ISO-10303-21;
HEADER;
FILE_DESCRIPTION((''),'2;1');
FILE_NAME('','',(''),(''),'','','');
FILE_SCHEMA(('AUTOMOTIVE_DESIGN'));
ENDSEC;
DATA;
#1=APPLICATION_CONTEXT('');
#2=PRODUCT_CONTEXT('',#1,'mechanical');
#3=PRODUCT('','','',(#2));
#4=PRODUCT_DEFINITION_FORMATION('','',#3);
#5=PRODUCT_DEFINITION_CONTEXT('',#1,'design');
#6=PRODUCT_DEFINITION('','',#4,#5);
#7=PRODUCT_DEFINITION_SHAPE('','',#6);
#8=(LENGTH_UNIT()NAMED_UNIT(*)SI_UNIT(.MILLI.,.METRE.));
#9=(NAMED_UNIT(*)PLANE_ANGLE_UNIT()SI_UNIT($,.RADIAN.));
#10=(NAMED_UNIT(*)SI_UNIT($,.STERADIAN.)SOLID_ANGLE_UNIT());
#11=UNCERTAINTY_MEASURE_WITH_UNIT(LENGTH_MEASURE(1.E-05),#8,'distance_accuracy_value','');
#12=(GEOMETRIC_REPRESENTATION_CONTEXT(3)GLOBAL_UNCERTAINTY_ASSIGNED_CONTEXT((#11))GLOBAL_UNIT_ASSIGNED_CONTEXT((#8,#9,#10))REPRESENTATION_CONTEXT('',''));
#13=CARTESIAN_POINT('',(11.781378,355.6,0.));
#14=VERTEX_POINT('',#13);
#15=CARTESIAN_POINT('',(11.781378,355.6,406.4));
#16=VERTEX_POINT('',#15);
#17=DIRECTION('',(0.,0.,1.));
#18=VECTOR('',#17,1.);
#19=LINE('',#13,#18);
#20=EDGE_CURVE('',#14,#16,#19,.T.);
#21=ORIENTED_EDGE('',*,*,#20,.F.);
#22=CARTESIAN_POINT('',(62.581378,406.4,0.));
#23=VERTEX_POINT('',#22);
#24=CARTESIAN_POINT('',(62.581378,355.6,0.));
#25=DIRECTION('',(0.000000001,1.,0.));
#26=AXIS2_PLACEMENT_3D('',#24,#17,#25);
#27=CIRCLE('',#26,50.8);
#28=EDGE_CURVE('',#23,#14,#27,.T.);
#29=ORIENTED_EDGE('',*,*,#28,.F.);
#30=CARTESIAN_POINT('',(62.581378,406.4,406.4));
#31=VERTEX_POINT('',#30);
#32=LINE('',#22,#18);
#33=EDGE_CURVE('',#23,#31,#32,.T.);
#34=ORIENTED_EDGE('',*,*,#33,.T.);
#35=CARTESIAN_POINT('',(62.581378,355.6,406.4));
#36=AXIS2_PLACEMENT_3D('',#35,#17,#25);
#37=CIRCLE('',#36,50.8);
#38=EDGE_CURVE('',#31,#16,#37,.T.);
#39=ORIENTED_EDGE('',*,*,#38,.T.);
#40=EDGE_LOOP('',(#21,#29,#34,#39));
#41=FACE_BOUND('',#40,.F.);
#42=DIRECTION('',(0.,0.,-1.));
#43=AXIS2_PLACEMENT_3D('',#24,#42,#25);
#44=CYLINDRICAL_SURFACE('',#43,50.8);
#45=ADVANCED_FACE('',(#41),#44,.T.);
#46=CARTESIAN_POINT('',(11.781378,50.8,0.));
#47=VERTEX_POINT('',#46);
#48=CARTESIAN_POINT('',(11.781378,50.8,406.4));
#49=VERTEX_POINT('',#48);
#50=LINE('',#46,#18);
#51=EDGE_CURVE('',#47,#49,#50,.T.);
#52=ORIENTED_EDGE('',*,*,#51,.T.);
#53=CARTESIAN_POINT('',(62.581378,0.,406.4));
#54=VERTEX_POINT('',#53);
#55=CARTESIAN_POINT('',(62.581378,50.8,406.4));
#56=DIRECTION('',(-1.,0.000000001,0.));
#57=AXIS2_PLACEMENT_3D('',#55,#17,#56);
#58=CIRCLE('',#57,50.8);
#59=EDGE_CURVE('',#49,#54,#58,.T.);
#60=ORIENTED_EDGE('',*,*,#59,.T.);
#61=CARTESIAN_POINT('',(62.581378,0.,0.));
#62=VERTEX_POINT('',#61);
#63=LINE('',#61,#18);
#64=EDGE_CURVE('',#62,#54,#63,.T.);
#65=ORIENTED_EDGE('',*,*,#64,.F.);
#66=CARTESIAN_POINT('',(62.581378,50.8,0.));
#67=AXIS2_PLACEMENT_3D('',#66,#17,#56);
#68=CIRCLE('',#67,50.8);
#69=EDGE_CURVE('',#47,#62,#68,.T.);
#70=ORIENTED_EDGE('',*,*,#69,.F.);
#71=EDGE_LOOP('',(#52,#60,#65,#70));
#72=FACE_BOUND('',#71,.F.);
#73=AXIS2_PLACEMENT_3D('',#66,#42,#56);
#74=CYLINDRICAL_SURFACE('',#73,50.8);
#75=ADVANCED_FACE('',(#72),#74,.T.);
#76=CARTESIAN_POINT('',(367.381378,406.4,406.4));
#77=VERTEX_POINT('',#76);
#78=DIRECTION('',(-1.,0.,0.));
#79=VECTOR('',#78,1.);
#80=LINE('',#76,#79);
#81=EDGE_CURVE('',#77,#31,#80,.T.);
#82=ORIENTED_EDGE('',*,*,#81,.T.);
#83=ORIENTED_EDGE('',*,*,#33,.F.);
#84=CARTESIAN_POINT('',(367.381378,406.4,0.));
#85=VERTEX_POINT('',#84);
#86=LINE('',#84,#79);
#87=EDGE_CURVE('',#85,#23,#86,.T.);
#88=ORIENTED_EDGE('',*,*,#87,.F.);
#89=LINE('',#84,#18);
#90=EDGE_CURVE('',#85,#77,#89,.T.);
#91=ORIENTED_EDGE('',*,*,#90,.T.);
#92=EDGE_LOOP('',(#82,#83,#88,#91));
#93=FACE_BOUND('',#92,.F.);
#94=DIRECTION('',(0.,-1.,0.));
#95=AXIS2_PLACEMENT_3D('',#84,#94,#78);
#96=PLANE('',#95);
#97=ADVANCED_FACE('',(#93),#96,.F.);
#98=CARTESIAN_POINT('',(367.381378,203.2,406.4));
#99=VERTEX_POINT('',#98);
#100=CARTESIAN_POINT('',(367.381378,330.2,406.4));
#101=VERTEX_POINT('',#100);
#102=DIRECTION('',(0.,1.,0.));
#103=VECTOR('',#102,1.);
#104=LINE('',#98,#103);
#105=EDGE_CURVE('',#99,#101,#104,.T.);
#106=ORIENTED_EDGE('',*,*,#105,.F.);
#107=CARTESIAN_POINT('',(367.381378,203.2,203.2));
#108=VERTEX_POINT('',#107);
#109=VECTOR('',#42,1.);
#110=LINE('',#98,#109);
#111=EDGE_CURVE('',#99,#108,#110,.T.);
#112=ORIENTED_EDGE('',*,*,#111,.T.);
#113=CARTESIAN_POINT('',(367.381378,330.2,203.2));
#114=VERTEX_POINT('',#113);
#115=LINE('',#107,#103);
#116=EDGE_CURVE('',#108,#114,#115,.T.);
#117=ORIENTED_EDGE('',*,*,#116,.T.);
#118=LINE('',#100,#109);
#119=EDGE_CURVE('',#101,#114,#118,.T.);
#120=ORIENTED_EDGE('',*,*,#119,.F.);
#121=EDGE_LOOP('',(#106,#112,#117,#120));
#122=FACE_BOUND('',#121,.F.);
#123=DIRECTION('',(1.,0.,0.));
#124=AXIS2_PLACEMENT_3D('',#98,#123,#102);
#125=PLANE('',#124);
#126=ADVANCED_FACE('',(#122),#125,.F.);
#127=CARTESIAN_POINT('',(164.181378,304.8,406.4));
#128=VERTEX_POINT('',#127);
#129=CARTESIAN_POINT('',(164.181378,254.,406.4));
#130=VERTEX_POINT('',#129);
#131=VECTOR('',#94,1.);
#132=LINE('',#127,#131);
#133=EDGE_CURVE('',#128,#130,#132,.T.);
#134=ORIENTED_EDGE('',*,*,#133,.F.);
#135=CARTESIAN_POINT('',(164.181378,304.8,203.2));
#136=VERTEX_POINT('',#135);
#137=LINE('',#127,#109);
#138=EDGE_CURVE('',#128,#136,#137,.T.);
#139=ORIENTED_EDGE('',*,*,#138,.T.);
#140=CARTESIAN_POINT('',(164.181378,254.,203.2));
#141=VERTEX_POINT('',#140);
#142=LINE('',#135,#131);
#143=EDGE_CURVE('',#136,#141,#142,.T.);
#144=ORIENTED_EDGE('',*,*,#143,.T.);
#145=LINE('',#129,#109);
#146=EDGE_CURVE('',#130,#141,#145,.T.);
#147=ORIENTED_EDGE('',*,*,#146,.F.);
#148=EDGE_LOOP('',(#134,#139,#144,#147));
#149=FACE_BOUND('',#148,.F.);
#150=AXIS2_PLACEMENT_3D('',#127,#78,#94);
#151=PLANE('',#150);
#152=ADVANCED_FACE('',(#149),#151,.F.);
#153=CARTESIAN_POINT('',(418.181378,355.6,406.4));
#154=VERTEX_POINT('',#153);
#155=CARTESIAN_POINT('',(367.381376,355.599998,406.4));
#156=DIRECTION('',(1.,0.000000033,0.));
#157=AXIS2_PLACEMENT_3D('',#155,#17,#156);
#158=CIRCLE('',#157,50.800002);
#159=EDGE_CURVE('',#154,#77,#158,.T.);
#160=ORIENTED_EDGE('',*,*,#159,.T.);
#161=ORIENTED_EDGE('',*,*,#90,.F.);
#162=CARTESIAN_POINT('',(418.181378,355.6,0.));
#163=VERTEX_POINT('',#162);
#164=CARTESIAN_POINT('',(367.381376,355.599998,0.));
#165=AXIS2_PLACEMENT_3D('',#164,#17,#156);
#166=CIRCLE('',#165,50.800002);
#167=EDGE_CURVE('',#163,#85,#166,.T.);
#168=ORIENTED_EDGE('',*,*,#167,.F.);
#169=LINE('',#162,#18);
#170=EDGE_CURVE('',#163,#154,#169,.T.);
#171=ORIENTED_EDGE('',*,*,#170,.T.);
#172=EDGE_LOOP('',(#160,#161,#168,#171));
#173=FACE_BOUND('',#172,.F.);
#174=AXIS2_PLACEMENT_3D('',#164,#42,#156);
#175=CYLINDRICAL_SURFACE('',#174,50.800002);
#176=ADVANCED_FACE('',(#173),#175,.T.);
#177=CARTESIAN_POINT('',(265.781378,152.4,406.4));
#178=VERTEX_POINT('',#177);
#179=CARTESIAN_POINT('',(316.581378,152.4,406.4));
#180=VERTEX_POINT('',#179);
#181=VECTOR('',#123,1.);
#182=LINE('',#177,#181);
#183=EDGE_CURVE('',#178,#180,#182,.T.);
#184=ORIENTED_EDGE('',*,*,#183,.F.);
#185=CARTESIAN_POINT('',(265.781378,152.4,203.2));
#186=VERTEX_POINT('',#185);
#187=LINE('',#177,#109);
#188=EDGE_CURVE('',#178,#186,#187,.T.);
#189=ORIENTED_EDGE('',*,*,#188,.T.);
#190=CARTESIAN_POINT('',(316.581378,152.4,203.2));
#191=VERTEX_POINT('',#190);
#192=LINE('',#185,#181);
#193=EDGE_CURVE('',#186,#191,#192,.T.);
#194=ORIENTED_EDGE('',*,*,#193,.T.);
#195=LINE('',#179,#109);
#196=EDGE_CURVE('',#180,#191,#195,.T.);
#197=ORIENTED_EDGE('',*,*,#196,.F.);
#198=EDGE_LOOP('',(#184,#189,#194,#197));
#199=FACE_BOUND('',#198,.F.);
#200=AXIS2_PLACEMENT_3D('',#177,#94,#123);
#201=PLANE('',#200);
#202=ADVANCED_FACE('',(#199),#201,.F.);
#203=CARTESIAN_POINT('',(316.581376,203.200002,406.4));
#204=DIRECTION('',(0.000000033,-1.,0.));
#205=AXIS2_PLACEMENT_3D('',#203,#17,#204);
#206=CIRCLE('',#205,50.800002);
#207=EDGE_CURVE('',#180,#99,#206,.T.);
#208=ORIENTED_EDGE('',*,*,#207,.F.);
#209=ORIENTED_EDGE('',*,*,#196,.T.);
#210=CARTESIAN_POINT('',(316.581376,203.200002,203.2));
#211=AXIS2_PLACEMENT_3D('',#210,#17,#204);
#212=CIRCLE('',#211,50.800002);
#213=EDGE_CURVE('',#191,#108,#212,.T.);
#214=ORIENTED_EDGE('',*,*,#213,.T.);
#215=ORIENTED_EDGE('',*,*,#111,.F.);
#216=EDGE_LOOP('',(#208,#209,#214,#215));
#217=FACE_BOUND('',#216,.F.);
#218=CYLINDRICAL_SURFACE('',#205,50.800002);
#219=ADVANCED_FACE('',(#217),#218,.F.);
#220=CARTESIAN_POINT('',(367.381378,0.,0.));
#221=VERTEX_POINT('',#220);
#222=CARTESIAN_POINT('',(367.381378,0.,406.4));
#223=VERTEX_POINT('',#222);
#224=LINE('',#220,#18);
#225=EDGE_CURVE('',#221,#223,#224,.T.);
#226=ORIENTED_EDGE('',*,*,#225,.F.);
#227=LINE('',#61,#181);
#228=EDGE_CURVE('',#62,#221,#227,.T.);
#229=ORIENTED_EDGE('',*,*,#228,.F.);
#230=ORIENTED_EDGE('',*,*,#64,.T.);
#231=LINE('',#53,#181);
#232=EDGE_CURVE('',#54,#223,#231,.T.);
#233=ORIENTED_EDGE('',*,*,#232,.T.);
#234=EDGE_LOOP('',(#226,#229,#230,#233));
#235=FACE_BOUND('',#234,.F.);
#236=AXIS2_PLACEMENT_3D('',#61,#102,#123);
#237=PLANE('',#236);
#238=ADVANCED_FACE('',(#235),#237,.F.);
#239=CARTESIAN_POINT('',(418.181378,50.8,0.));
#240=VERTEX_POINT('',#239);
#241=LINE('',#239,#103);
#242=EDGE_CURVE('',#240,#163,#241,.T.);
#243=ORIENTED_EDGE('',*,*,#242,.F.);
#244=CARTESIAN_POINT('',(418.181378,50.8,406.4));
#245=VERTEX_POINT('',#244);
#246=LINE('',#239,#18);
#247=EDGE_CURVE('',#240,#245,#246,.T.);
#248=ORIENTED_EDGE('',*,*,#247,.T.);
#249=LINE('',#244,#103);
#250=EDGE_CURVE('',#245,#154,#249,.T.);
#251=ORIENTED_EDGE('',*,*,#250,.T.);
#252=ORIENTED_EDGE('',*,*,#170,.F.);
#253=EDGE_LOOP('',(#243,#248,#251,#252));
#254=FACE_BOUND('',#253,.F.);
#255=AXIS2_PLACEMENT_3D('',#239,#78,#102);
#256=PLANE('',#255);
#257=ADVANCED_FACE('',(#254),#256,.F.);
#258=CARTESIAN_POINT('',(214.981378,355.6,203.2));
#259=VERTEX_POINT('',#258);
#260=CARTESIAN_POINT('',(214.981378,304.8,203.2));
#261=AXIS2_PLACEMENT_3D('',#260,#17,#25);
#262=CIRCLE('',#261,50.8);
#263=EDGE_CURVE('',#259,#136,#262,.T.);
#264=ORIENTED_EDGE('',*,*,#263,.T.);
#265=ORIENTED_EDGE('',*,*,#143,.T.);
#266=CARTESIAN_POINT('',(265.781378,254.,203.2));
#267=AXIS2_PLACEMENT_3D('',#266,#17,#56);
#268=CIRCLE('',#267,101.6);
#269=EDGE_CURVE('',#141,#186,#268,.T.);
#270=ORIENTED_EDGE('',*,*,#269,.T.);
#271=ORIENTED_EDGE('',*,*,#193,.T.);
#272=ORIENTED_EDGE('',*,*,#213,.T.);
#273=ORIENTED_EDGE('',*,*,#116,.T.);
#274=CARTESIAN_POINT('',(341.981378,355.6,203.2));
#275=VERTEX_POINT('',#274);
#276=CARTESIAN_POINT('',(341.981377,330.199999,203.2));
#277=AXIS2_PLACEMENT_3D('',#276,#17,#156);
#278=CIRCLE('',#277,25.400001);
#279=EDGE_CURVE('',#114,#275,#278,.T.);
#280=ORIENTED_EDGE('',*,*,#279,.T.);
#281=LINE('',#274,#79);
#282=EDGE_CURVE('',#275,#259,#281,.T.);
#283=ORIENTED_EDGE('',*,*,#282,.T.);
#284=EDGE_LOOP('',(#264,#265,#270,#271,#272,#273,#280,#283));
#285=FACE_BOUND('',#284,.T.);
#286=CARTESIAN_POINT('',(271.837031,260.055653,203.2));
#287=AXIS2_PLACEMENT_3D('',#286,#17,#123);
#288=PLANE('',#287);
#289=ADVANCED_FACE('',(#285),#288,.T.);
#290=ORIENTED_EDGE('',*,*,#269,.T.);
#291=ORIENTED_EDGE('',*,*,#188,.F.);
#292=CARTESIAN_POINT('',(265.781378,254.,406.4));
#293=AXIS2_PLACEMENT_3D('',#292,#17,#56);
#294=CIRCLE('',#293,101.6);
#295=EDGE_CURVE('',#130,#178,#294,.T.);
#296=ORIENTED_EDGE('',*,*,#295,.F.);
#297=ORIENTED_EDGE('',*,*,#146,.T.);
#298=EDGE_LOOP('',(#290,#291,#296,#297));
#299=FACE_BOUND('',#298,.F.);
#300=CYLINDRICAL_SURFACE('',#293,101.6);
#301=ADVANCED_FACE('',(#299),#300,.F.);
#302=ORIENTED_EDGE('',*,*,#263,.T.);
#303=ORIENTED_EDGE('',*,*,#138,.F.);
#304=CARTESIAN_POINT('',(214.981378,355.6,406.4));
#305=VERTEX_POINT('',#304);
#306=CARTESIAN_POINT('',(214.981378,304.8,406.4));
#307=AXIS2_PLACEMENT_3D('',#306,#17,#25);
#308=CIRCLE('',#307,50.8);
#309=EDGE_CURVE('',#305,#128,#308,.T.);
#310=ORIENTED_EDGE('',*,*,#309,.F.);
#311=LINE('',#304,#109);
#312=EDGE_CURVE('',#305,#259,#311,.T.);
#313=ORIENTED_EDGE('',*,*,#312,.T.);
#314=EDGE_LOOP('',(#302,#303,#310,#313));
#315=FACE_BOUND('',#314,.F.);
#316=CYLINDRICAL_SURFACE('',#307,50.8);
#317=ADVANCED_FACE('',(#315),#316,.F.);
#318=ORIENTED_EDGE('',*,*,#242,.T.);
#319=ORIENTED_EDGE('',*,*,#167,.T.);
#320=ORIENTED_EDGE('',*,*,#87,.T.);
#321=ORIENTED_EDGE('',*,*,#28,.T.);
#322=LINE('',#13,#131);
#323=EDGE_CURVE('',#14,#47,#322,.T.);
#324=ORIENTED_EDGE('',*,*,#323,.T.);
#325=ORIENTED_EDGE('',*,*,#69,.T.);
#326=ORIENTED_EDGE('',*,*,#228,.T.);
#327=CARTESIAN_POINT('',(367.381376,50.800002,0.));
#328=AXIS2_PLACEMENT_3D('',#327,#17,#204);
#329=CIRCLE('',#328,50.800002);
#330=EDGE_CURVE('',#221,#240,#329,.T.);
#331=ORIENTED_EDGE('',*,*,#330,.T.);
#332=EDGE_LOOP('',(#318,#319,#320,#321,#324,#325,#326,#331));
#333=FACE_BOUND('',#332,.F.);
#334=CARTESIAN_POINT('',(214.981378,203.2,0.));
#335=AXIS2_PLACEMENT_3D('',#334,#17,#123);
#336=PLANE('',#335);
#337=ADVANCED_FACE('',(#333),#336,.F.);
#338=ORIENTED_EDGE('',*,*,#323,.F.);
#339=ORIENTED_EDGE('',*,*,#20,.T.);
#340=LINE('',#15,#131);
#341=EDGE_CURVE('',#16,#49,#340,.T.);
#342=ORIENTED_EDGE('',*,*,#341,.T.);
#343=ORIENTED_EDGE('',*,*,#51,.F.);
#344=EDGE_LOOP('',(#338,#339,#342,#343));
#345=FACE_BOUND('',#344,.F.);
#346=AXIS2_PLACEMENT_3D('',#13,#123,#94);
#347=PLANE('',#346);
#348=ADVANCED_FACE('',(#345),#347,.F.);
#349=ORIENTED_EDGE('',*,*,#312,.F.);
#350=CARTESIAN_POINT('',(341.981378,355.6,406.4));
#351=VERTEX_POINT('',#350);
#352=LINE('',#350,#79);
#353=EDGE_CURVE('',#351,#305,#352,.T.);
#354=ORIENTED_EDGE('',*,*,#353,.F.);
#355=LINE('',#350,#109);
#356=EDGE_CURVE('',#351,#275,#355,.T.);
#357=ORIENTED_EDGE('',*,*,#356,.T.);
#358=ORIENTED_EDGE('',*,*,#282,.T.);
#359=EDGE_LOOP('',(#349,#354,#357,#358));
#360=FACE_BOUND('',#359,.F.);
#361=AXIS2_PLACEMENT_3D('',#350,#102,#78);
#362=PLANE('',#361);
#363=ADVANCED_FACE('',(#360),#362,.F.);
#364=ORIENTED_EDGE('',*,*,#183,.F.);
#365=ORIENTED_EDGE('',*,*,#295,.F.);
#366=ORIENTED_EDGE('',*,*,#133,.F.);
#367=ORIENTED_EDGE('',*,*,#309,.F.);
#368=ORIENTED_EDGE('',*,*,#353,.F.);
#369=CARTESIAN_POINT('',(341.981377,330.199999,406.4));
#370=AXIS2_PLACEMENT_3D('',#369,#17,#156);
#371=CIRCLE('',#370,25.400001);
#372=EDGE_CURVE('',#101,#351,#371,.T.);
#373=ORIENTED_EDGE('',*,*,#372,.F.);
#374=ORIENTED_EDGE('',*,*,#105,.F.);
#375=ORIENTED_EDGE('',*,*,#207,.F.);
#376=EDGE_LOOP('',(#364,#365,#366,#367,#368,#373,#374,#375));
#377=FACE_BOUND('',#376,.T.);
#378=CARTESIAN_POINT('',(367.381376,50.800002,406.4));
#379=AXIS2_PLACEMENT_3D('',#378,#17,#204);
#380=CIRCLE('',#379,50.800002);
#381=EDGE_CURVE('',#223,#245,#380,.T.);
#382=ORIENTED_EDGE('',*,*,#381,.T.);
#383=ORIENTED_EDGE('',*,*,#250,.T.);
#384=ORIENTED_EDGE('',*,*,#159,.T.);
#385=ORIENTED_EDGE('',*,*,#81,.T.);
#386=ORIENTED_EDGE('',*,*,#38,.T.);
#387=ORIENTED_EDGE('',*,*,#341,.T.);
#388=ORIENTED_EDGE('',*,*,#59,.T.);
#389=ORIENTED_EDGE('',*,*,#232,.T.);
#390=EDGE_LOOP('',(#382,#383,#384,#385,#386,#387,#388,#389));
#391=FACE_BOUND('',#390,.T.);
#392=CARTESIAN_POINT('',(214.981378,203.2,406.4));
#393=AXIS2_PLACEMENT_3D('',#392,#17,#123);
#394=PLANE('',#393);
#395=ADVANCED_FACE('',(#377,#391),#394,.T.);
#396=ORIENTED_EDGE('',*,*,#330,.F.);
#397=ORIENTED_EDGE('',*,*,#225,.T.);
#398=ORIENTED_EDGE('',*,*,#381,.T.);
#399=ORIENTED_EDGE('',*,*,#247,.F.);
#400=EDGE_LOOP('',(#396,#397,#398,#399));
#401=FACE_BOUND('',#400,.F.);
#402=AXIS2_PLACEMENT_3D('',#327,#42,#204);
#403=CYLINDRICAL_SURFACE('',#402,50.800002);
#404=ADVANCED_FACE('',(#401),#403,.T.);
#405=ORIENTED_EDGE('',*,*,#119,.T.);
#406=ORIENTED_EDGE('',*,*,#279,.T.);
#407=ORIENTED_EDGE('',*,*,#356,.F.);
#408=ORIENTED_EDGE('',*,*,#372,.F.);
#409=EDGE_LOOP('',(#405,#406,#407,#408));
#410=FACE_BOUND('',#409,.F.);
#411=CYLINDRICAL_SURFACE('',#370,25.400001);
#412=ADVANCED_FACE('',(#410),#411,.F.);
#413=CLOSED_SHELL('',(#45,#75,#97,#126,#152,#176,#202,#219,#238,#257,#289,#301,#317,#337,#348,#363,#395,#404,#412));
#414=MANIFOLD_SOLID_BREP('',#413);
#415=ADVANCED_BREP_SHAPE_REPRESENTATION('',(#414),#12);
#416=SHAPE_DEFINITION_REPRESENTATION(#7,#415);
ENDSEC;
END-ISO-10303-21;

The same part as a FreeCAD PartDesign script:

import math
import FreeCAD as App
import Part
import Sketcher

V = App.Vector
Q = App.Units.Quantity

doc = App.newDocument("Part")
params = doc.addObject("Spreadsheet::Sheet", "Params")
for row, (alias, value) in enumerate([
    ("sketch1_radius", "2 in"),
    ("sketch1_width", "12 in"),
    ("pad1_length", "16 in"),
    ("sketch2_radius", "1 in"),
    ("sketch2_radius2", "2 in"),
    ("sketch2_radius3", "4 in"),
    ("sketch2_width", "5 in"),
    ("pocket1_length", "8 in"),
], start=1):
    params.set(f"A{row}", alias)
    params.set(f"B{row}", "=" + value)
    params.setAlias(f"B{row}", alias)

body = doc.addObject("PartDesign::Body", "Body")

sketch1 = body.newObject("Sketcher::SketchObject", "Sketch")
sketch1.AttachmentSupport = (doc.getObject("XY_Plane"), [""])
sketch1.MapMode = "FlatFace"
sketch1.addGeometry(Part.ArcOfCircle(Part.Circle(V(62.581378, 50.8, 0), V(0, 0, 1), 50.8), math.radians(180), math.radians(270)), False)
sketch1.addGeometry(Part.LineSegment(V(62.581378, 0, 0), V(367.381378, 0, 0)), False)
sketch1.addGeometry(Part.ArcOfCircle(Part.Circle(V(367.381376, 50.800002, 0), V(0, 0, 1), 50.800002), math.radians(-89.999998), math.radians(-0.000002)), False)
sketch1.addGeometry(Part.LineSegment(V(418.181378, 50.8, 0), V(418.181378, 355.6, 0)), False)
sketch1.addGeometry(Part.ArcOfCircle(Part.Circle(V(367.381376, 355.599998, 0), V(0, 0, 1), 50.800002), math.radians(0.000002), math.radians(89.999998)), False)
sketch1.addGeometry(Part.LineSegment(V(367.381378, 406.4, 0), V(62.581378, 406.4, 0)), False)
sketch1.addGeometry(Part.ArcOfCircle(Part.Circle(V(62.581378, 355.6, 0), V(0, 0, 1), 50.8), math.radians(90), math.radians(180)), False)
sketch1.addGeometry(Part.LineSegment(V(11.781378, 355.6, 0), V(11.781378, 50.8, 0)), False)
sketch1.addConstraint(Sketcher.Constraint("Tangent", 0, 2, 1, 1))
sketch1.addConstraint(Sketcher.Constraint("Tangent", 1, 2, 2, 1))
sketch1.addConstraint(Sketcher.Constraint("Tangent", 2, 2, 3, 1))
sketch1.addConstraint(Sketcher.Constraint("Tangent", 3, 2, 4, 1))
sketch1.addConstraint(Sketcher.Constraint("Tangent", 4, 2, 5, 1))
sketch1.addConstraint(Sketcher.Constraint("Tangent", 5, 2, 6, 1))
sketch1.addConstraint(Sketcher.Constraint("Tangent", 6, 2, 7, 1))
sketch1.addConstraint(Sketcher.Constraint("Tangent", 7, 2, 0, 1))
sketch1.addConstraint(Sketcher.Constraint("Horizontal", 1))
sketch1.addConstraint(Sketcher.Constraint("Vertical", 3))
sketch1.addConstraint(Sketcher.Constraint("Horizontal", 5))
sketch1.addConstraint(Sketcher.Constraint("Vertical", 7))
sketch1.addConstraint(Sketcher.Constraint("Equal", 0, 2))
sketch1.addConstraint(Sketcher.Constraint("Equal", 2, 4))
sketch1.addConstraint(Sketcher.Constraint("Equal", 4, 6))
sketch1.addConstraint(Sketcher.Constraint("PointOnObject", 0, 2, -1))
sketch1.addConstraint(Sketcher.Constraint("Equal", 5, 3))
sketch1.addConstraint(Sketcher.Constraint("Radius", 0, Q("2 in")))
sketch1.addConstraint(Sketcher.Constraint("DistanceX", 1, 1, 1, 2, Q("12 in")))
sketch1.addConstraint(Sketcher.Constraint("DistanceX", -1, 1, 1, 2, Q("367.381378 mm")))
sketch1.setExpression("Constraints[17]", "Params.sketch1_radius")
sketch1.setExpression("Constraints[18]", "Params.sketch1_width")
pad1 = body.newObject("PartDesign::Pad", "Pad")
pad1.Profile = sketch1
pad1.setExpression("Length", "Params.pad1_length")

sketch2 = body.newObject("Sketcher::SketchObject", "Sketch001")
sketch2.AttachmentSupport = (doc.getObject("XY_Plane"), [""])
sketch2.MapMode = "FlatFace"
sketch2.AttachmentOffset = App.Placement(V(0, 0, 16 * 25.4), App.Rotation())
sketch2.addGeometry(Part.ArcOfCircle(Part.Circle(V(341.981377, 330.199999, 0), V(0, 0, 1), 25.400001), math.radians(0.000002), math.radians(89.999998)), False)
sketch2.addGeometry(Part.LineSegment(V(341.981378, 355.6, 0), V(214.981378, 355.6, 0)), False)
sketch2.addGeometry(Part.ArcOfCircle(Part.Circle(V(214.981378, 304.8, 0), V(0, 0, 1), 50.8), math.radians(90), math.radians(180)), False)
sketch2.addGeometry(Part.LineSegment(V(164.181378, 304.8, 0), V(164.181378, 254, 0)), False)
sketch2.addGeometry(Part.ArcOfCircle(Part.Circle(V(265.781378, 254, 0), V(0, 0, 1), 101.6), math.radians(180), math.radians(270)), False)
sketch2.addGeometry(Part.LineSegment(V(265.781378, 152.4, 0), V(316.581378, 152.4, 0)), False)
sketch2.addGeometry(Part.ArcOfCircle(Part.Circle(V(316.581376, 203.200002, 0), V(0, 0, 1), 50.800002), math.radians(-89.999998), math.radians(-0.000002)), False)
sketch2.addGeometry(Part.LineSegment(V(367.381378, 203.2, 0), V(367.381378, 330.2, 0)), False)
sketch2.addConstraint(Sketcher.Constraint("Tangent", 0, 2, 1, 1))
sketch2.addConstraint(Sketcher.Constraint("Tangent", 1, 2, 2, 1))
sketch2.addConstraint(Sketcher.Constraint("Tangent", 2, 2, 3, 1))
sketch2.addConstraint(Sketcher.Constraint("Tangent", 3, 2, 4, 1))
sketch2.addConstraint(Sketcher.Constraint("Tangent", 4, 2, 5, 1))
sketch2.addConstraint(Sketcher.Constraint("Tangent", 5, 2, 6, 1))
sketch2.addConstraint(Sketcher.Constraint("Tangent", 6, 2, 7, 1))
sketch2.addConstraint(Sketcher.Constraint("Tangent", 7, 2, 0, 1))
sketch2.addConstraint(Sketcher.Constraint("Horizontal", 1))
sketch2.addConstraint(Sketcher.Constraint("Vertical", 3))
sketch2.addConstraint(Sketcher.Constraint("Horizontal", 5))
sketch2.addConstraint(Sketcher.Constraint("Vertical", 7))
sketch2.addConstraint(Sketcher.Constraint("Equal", 2, 6))
sketch2.addConstraint(Sketcher.Constraint("Equal", 5, 3))
sketch2.addConstraint(Sketcher.Constraint("Radius", 0, Q("1 in")))
sketch2.addConstraint(Sketcher.Constraint("Radius", 2, Q("2 in")))
sketch2.addConstraint(Sketcher.Constraint("Radius", 4, Q("4 in")))
sketch2.addConstraint(Sketcher.Constraint("DistanceX", 1, 2, 1, 1, Q("5 in")))
sketch2.addConstraint(Sketcher.Constraint("DistanceY", -1, 1, 0, 3, Q("13 in")))
sketch2.addConstraint(Sketcher.Constraint("DistanceX", -1, 1, 0, 2, Q("341.981378 mm")))
sketch2.setExpression("Constraints[14]", "Params.sketch2_radius")
sketch2.setExpression("Constraints[15]", "Params.sketch2_radius2")
sketch2.setExpression("Constraints[16]", "Params.sketch2_radius3")
sketch2.setExpression("Constraints[17]", "Params.sketch2_width")
pocket1 = body.newObject("PartDesign::Pocket", "Pocket")
pocket1.Profile = sketch2
pocket1.setExpression("Length", "Params.pocket1_length")

doc.recompute()
